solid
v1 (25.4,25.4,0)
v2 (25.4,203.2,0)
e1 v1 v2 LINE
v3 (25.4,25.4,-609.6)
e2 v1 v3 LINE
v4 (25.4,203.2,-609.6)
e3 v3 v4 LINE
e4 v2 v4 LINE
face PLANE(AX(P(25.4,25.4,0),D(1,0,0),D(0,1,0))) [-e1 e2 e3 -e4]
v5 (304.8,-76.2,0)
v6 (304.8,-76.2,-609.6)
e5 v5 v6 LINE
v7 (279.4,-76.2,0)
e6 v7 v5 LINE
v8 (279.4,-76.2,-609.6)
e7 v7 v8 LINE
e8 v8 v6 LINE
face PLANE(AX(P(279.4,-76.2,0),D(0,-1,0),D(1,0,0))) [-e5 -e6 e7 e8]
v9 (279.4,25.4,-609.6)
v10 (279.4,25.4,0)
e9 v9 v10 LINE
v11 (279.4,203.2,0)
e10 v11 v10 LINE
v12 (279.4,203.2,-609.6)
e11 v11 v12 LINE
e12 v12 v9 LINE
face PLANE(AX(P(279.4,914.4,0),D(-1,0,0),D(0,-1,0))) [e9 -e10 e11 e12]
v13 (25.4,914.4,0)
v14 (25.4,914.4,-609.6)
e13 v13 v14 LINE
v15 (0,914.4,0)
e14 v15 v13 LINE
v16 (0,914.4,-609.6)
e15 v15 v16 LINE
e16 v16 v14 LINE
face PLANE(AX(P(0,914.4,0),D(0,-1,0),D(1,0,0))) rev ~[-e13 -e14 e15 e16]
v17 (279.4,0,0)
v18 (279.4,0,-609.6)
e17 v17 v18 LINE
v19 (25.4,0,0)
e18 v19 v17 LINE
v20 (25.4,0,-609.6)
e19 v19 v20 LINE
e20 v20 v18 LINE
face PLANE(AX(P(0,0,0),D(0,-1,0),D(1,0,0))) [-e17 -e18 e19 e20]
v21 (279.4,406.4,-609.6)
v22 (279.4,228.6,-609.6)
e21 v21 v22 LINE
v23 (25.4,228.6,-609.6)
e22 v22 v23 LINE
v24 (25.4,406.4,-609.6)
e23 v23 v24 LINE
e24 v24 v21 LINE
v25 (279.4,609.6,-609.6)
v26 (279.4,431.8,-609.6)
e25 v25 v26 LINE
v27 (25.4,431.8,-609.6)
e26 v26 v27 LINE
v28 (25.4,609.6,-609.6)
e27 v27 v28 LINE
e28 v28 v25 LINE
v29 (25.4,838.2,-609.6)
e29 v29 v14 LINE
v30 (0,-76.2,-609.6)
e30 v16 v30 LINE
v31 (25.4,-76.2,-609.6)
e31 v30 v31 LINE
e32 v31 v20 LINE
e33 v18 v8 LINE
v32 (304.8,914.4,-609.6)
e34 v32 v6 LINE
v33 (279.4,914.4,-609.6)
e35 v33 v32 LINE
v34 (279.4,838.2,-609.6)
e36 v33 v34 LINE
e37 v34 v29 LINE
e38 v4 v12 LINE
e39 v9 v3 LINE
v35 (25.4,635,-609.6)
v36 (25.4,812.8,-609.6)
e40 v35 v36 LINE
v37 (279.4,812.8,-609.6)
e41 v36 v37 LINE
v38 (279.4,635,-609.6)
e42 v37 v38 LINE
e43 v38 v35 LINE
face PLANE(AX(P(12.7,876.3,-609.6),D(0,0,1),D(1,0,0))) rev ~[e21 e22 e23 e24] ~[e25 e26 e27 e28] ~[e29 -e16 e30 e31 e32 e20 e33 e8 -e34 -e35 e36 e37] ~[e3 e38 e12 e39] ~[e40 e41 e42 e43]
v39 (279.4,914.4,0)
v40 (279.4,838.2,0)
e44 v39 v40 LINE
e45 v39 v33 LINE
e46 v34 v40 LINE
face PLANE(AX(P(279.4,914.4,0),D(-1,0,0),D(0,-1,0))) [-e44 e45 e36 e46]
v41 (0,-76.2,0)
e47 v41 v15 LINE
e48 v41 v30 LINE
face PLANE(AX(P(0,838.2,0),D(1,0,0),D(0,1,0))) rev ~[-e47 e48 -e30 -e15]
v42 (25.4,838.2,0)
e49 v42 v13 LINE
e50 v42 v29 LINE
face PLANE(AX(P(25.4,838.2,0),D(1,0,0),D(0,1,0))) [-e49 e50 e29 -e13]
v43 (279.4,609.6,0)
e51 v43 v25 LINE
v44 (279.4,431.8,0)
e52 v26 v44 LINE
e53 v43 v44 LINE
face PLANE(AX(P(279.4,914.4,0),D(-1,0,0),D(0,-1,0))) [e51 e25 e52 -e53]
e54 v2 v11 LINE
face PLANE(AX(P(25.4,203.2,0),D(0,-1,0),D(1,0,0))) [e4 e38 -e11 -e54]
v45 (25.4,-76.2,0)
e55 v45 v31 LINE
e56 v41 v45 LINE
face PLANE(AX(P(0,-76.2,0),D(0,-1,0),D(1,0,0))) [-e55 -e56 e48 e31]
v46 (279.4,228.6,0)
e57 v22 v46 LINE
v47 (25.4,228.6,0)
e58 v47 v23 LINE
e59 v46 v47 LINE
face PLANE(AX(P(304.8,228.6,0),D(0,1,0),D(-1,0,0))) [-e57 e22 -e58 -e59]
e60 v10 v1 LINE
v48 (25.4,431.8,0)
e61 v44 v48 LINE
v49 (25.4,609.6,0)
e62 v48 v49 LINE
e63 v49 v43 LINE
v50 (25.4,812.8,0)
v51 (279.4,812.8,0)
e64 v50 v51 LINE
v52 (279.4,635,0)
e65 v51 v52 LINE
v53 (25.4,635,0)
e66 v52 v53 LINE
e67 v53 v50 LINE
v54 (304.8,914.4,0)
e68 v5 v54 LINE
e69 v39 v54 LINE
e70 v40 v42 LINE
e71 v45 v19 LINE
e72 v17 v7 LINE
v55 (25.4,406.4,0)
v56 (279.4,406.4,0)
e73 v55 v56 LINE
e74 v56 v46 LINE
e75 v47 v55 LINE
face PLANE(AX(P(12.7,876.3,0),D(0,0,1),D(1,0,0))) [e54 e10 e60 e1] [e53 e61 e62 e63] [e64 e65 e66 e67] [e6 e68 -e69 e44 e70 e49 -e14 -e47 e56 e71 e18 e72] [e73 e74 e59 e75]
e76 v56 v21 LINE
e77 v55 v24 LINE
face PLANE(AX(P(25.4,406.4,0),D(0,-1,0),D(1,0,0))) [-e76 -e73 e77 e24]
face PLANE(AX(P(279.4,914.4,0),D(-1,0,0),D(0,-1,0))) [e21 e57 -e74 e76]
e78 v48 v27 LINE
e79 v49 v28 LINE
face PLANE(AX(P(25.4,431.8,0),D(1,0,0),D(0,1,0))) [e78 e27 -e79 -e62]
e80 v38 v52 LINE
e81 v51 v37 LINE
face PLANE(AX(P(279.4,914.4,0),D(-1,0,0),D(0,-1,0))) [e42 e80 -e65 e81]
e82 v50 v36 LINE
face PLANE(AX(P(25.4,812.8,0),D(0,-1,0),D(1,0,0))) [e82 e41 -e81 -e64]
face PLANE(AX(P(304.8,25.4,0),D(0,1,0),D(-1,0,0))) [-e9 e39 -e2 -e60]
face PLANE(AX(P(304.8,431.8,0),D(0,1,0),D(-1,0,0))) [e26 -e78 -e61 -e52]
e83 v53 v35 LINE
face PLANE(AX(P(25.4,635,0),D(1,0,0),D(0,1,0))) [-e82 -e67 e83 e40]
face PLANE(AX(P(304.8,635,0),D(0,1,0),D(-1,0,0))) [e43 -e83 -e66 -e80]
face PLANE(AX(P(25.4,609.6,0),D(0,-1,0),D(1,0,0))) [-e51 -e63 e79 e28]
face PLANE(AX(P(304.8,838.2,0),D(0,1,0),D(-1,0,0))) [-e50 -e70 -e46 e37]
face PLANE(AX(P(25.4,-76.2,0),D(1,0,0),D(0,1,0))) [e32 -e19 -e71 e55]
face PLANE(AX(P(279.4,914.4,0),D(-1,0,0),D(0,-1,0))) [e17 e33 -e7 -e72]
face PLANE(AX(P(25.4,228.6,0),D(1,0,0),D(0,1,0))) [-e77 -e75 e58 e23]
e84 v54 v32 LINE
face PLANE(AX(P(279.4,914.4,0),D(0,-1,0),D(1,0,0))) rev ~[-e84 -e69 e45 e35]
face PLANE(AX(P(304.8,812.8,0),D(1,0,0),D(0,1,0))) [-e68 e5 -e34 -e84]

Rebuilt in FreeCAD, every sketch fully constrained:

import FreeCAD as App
import Part
import Sketcher
from FreeCAD import Vector
Q = App.Units.Quantity

doc = App.newDocument("Part")
params = doc.addObject("Spreadsheet::Sheet", "Params")
for row, (alias, value) in enumerate([
    ("sketch1_width", "12 in"),
    ("sketch1_width2", "11 in"),
    ("sketch1_height", "33 in"),
    ("sketch1_height2", "1 in"),
    ("pad1_length", "24 in"),
    ("sketch2_width", "1 in"),
    ("sketch2_height", "3 in"),
    ("sketch2_height2", "39 in"),
    ("pad2_length", "24 in"),
], start=1):
    params.set(f"A{row}", alias)
    params.set(f"B{row}", "=" + value)
    params.setAlias(f"B{row}", alias)

body = doc.addObject("PartDesign::Body", "Body")

# Sketch on XY plane
sketch1 = doc.addObject("Sketcher::SketchObject", "Sketch")
body.addObject(sketch1)
sketch1.AttachmentSupport = (doc.XY_Plane, [""])
sketch1.MapMode = "FlatFace"
sketch1.addGeometry(Part.LineSegment(Vector(305, 838, 0), Vector(0, 838, 0)), False)
sketch1.addGeometry(Part.LineSegment(Vector(0, 838, 0), Vector(0, 0, 0)), False)
sketch1.addGeometry(Part.LineSegment(Vector(0, 0, 0), Vector(305, 0, 0)), False)
sketch1.addGeometry(Part.LineSegment(Vector(305, 0, 0), Vector(305, 25, 0)), False)
sketch1.addGeometry(Part.LineSegment(Vector(305, 25, 0), Vector(25, 25, 0)), False)
sketch1.addGeometry(Part.LineSegment(Vector(25, 25, 0), Vector(25, 203, 0)), False)
sketch1.addGeometry(Part.LineSegment(Vector(25, 203, 0), Vector(305, 203, 0)), False)
sketch1.addGeometry(Part.LineSegment(Vector(305, 203, 0), Vector(305, 229, 0)), False)
sketch1.addGeometry(Part.LineSegment(Vector(305, 229, 0), Vector(25, 229, 0)), False)
sketch1.addGeometry(Part.LineSegment(Vector(25, 229, 0), Vector(25, 406, 0)), False)
sketch1.addGeometry(Part.LineSegment(Vector(25, 406, 0), Vector(305, 406, 0)), False)
sketch1.addGeometry(Part.LineSegment(Vector(305, 406, 0), Vector(305, 432, 0)), False)
sketch1.addGeometry(Part.LineSegment(Vector(305, 432, 0), Vector(25, 432, 0)), False)
sketch1.addGeometry(Part.LineSegment(Vector(25, 432, 0), Vector(25, 610, 0)), False)
sketch1.addGeometry(Part.LineSegment(Vector(25, 610, 0), Vector(305, 610, 0)), False)
sketch1.addGeometry(Part.LineSegment(Vector(305, 610, 0), Vector(305, 635, 0)), False)
sketch1.addGeometry(Part.LineSegment(Vector(305, 635, 0), Vector(25, 635, 0)), False)
sketch1.addGeometry(Part.LineSegment(Vector(25, 635, 0), Vector(25, 813, 0)), False)
sketch1.addGeometry(Part.LineSegment(Vector(25, 813, 0), Vector(305, 813, 0)), False)
sketch1.addGeometry(Part.LineSegment(Vector(305, 813, 0), Vector(305, 838, 0)), False)
sketch1.addConstraint(Sketcher.Constraint("Coincident", 0, 2, 1, 1))
sketch1.addConstraint(Sketcher.Constraint("Coincident", 1, 2, 2, 1))
sketch1.addConstraint(Sketcher.Constraint("Coincident", 2, 2, 3, 1))
sketch1.addConstraint(Sketcher.Constraint("Coincident", 3, 2, 4, 1))
sketch1.addConstraint(Sketcher.Constraint("Coincident", 4, 2, 5, 1))
sketch1.addConstraint(Sketcher.Constraint("Coincident", 5, 2, 6, 1))
sketch1.addConstraint(Sketcher.Constraint("Coincident", 6, 2, 7, 1))
sketch1.addConstraint(Sketcher.Constraint("Coincident", 7, 2, 8, 1))
sketch1.addConstraint(Sketcher.Constraint("Coincident", 8, 2, 9, 1))
sketch1.addConstraint(Sketcher.Constraint("Coincident", 9, 2, 10, 1))
sketch1.addConstraint(Sketcher.Constraint("Coincident", 10, 2, 11, 1))
sketch1.addConstraint(Sketcher.Constraint("Coincident", 11, 2, 12, 1))
sketch1.addConstraint(Sketcher.Constraint("Coincident", 12, 2, 13, 1))
sketch1.addConstraint(Sketcher.Constraint("Coincident", 13, 2, 14, 1))
sketch1.addConstraint(Sketcher.Constraint("Coincident", 14, 2, 15, 1))
sketch1.addConstraint(Sketcher.Constraint("Coincident", 15, 2, 16, 1))
sketch1.addConstraint(Sketcher.Constraint("Coincident", 16, 2, 17, 1))
sketch1.addConstraint(Sketcher.Constraint("Coincident", 17, 2, 18, 1))
sketch1.addConstraint(Sketcher.Constraint("Coincident", 18, 2, 19, 1))
sketch1.addConstraint(Sketcher.Constraint("Coincident", 19, 2, 0, 1))
sketch1.addConstraint(Sketcher.Constraint("Horizontal", 0))
sketch1.addConstraint(Sketcher.Constraint("Vertical", 1))
sketch1.addConstraint(Sketcher.Constraint("Horizontal", 2))
sketch1.addConstraint(Sketcher.Constraint("Vertical", 3))
sketch1.addConstraint(Sketcher.Constraint("Horizontal", 4))
sketch1.addConstraint(Sketcher.Constraint("Vertical", 5))
sketch1.addConstraint(Sketcher.Constraint("Horizontal", 6))
sketch1.addConstraint(Sketcher.Constraint("Vertical", 7))
sketch1.addConstraint(Sketcher.Constraint("Horizontal", 8))
sketch1.addConstraint(Sketcher.Constraint("Vertical", 9))
sketch1.addConstraint(Sketcher.Constraint("Horizontal", 10))
sketch1.addConstraint(Sketcher.Constraint("Vertical", 11))
sketch1.addConstraint(Sketcher.Constraint("Horizontal", 12))
sketch1.addConstraint(Sketcher.Constraint("Vertical", 13))
sketch1.addConstraint(Sketcher.Constraint("Horizontal", 14))
sketch1.addConstraint(Sketcher.Constraint("Vertical", 15))
sketch1.addConstraint(Sketcher.Constraint("Horizontal", 16))
sketch1.addConstraint(Sketcher.Constraint("Vertical", 17))
sketch1.addConstraint(Sketcher.Constraint("Horizontal", 18))
sketch1.addConstraint(Sketcher.Constraint("Vertical", 19))
sketch1.addConstraint(Sketcher.Constraint("Coincident", 1, 2, -1, 1))
sketch1.addConstraint(Sketcher.Constraint("Vertical", 3, 2, 6, 2))
sketch1.addConstraint(Sketcher.Constraint("Vertical", 5, 2, 8, 2))
sketch1.addConstraint(Sketcher.Constraint("Vertical", 7, 2, 10, 2))
sketch1.addConstraint(Sketcher.Constraint("Vertical", 9, 2, 12, 2))
sketch1.addConstraint(Sketcher.Constraint("Vertical", 11, 2, 14, 2))
sketch1.addConstraint(Sketcher.Constraint("Vertical", 13, 2, 16, 2))
sketch1.addConstraint(Sketcher.Constraint("Vertical", 15, 2, 18, 2))
sketch1.addConstraint(Sketcher.Constraint("Equal", 3, 7))
sketch1.addConstraint(Sketcher.Constraint("Equal", 5, 9))
sketch1.addConstraint(Sketcher.Constraint("Equal", 7, 11))
sketch1.addConstraint(Sketcher.Constraint("Equal", 9, 13))
sketch1.addConstraint(Sketcher.Constraint("Equal", 11, 15))
sketch1.addConstraint(Sketcher.Constraint("Equal", 13, 17))
sketch1.addConstraint(Sketcher.Constraint("Equal", 15, 19))
sketch1.addConstraint(Sketcher.Constraint("DistanceX", 0, 2, 0, 1, Q("12 in")))
sketch1.addConstraint(Sketcher.Constraint("DistanceX", 4, 2, 4, 1, Q("11 in")))
sketch1.addConstraint(Sketcher.Constraint("DistanceY", 1, 2, 1, 1, Q("33 in")))
sketch1.addConstraint(Sketcher.Constraint("DistanceY", 3, 1, 3, 2, Q("1 in")))
sketch1.setExpression("Constraints[55]", "Params.sketch1_width")
sketch1.setExpression("Constraints[56]", "Params.sketch1_width2")
sketch1.setExpression("Constraints[57]", "Params.sketch1_height")
sketch1.setExpression("Constraints[58]", "Params.sketch1_height2")
pad1 = doc.addObject("PartDesign::Pad", "Pad")
body.addObject(pad1)
pad1.Profile = sketch1
pad1.setExpression("Length", "Params.pad1_length")
pad1.Reversed = True

# Sketch on XY plane
sketch2 = doc.addObject("Sketcher::SketchObject", "Sketch001")
body.addObject(sketch2)
sketch2.AttachmentSupport = (doc.XY_Plane, [""])
sketch2.MapMode = "FlatFace"
sketch2.addGeometry(Part.LineSegment(Vector(0, 914, 0), Vector(0, 838, 0)), False)
sketch2.addGeometry(Part.LineSegment(Vector(0, 838, 0), Vector(25, 838, 0)), False)
sketch2.addGeometry(Part.LineSegment(Vector(25, 838, 0), Vector(25, 914, 0)), False)
sketch2.addGeometry(Part.LineSegment(Vector(25, 914, 0), Vector(0, 914, 0)), False)
sketch2.addGeometry(Part.LineSegment(Vector(0, 0, 0), Vector(0, -76, 0)), False)
sketch2.addGeometry(Part.LineSegment(Vector(0, -76, 0), Vector(25, -76, 0)), False)
sketch2.addGeometry(Part.LineSegment(Vector(25, -76, 0), Vector(25, 0, 0)), False)
sketch2.addGeometry(Part.LineSegment(Vector(25, 0, 0), Vector(0, 0, 0)), False)
sketch2.addGeometry(Part.LineSegment(Vector(305, 914, 0), Vector(279, 914, 0)), False)
sketch2.addGeometry(Part.LineSegment(Vector(279, 914, 0), Vector(279, -76, 0)), False)
sketch2.addGeometry(Part.LineSegment(Vector(279, -76, 0), Vector(305, -76, 0)), False)
sketch2.addGeometry(Part.LineSegment(Vector(305, -76, 0), Vector(305, 914, 0)), False)
sketch2.addConstraint(Sketcher.Constraint("Coincident", 0, 2, 1, 1))
sketch2.addConstraint(Sketcher.Constraint("Coincident", 1, 2, 2, 1))
sketch2.addConstraint(Sketcher.Constraint("Coincident", 2, 2, 3, 1))
sketch2.addConstraint(Sketcher.Constraint("Coincident", 3, 2, 0, 1))
sketch2.addConstraint(Sketcher.Constraint("Coincident", 4, 2, 5, 1))
sketch2.addConstraint(Sketcher.Constraint("Coincident", 5, 2, 6, 1))
sketch2.addConstraint(Sketcher.Constraint("Coincident", 6, 2, 7, 1))
sketch2.addConstraint(Sketcher.Constraint("Coincident", 7, 2, 4, 1))
sketch2.addConstraint(Sketcher.Constraint("Coincident", 8, 2, 9, 1))
sketch2.addConstraint(Sketcher.Constraint("Coincident", 9, 2, 10, 1))
sketch2.addConstraint(Sketcher.Constraint("Coincident", 10, 2, 11, 1))
sketch2.addConstraint(Sketcher.Constraint("Coincident", 11, 2, 8, 1))
sketch2.addConstraint(Sketcher.Constraint("Vertical", 0))
sketch2.addConstraint(Sketcher.Constraint("Horizontal", 1))
sketch2.addConstraint(Sketcher.Constraint("Vertical", 2))
sketch2.addConstraint(Sketcher.Constraint("Horizontal", 3))
sketch2.addConstraint(Sketcher.Constraint("Vertical", 4))
sketch2.addConstraint(Sketcher.Constraint("Horizontal", 5))
sketch2.addConstraint(Sketcher.Constraint("Vertical", 6))
sketch2.addConstraint(Sketcher.Constraint("Horizontal", 7))
sketch2.addConstraint(Sketcher.Constraint("Horizontal", 8))
sketch2.addConstraint(Sketcher.Constraint("Vertical", 9))
sketch2.addConstraint(Sketcher.Constraint("Horizontal", 10))
sketch2.addConstraint(Sketcher.Constraint("Vertical", 11))
sketch2.addConstraint(Sketcher.Constraint("Coincident", 7, 2, -1, 1))
sketch2.addConstraint(Sketcher.Constraint("PointOnObject", 0, 2, -2))
sketch2.addConstraint(Sketcher.Constraint("Horizontal", 3, 2, 8, 2))
sketch2.addConstraint(Sketcher.Constraint("Horizontal", 5, 2, 9, 2))
sketch2.addConstraint(Sketcher.Constraint("Vertical", 2, 2, 5, 2))
sketch2.addConstraint(Sketcher.Constraint("Equal", 7, 8))
sketch2.addConstraint(Sketcher.Constraint("Equal", 2, 4))
sketch2.addConstraint(Sketcher.Constraint("DistanceX", 1, 1, 1, 2, Q("1 in")))
sketch2.addConstraint(Sketcher.Constraint("DistanceY", 0, 2, 0, 1, Q("3 in")))
sketch2.addConstraint(Sketcher.Constraint("DistanceY", 9, 2, 9, 1, Q("39 in")))
sketch2.addConstraint(Sketcher.Constraint("DistanceX", -1, 1, 8, 2, Q("11 in")))
sketch2.setExpression("Constraints[31]", "Params.sketch2_width")
sketch2.setExpression("Constraints[32]", "Params.sketch2_height")
sketch2.setExpression("Constraints[33]", "Params.sketch2_height2")
pad2 = doc.addObject("PartDesign::Pad", "Pad001")
body.addObject(pad2)
pad2.Profile = sketch2
pad2.setExpression("Length", "Params.pad2_length")
pad2.Reversed = True

doc.recompute()
